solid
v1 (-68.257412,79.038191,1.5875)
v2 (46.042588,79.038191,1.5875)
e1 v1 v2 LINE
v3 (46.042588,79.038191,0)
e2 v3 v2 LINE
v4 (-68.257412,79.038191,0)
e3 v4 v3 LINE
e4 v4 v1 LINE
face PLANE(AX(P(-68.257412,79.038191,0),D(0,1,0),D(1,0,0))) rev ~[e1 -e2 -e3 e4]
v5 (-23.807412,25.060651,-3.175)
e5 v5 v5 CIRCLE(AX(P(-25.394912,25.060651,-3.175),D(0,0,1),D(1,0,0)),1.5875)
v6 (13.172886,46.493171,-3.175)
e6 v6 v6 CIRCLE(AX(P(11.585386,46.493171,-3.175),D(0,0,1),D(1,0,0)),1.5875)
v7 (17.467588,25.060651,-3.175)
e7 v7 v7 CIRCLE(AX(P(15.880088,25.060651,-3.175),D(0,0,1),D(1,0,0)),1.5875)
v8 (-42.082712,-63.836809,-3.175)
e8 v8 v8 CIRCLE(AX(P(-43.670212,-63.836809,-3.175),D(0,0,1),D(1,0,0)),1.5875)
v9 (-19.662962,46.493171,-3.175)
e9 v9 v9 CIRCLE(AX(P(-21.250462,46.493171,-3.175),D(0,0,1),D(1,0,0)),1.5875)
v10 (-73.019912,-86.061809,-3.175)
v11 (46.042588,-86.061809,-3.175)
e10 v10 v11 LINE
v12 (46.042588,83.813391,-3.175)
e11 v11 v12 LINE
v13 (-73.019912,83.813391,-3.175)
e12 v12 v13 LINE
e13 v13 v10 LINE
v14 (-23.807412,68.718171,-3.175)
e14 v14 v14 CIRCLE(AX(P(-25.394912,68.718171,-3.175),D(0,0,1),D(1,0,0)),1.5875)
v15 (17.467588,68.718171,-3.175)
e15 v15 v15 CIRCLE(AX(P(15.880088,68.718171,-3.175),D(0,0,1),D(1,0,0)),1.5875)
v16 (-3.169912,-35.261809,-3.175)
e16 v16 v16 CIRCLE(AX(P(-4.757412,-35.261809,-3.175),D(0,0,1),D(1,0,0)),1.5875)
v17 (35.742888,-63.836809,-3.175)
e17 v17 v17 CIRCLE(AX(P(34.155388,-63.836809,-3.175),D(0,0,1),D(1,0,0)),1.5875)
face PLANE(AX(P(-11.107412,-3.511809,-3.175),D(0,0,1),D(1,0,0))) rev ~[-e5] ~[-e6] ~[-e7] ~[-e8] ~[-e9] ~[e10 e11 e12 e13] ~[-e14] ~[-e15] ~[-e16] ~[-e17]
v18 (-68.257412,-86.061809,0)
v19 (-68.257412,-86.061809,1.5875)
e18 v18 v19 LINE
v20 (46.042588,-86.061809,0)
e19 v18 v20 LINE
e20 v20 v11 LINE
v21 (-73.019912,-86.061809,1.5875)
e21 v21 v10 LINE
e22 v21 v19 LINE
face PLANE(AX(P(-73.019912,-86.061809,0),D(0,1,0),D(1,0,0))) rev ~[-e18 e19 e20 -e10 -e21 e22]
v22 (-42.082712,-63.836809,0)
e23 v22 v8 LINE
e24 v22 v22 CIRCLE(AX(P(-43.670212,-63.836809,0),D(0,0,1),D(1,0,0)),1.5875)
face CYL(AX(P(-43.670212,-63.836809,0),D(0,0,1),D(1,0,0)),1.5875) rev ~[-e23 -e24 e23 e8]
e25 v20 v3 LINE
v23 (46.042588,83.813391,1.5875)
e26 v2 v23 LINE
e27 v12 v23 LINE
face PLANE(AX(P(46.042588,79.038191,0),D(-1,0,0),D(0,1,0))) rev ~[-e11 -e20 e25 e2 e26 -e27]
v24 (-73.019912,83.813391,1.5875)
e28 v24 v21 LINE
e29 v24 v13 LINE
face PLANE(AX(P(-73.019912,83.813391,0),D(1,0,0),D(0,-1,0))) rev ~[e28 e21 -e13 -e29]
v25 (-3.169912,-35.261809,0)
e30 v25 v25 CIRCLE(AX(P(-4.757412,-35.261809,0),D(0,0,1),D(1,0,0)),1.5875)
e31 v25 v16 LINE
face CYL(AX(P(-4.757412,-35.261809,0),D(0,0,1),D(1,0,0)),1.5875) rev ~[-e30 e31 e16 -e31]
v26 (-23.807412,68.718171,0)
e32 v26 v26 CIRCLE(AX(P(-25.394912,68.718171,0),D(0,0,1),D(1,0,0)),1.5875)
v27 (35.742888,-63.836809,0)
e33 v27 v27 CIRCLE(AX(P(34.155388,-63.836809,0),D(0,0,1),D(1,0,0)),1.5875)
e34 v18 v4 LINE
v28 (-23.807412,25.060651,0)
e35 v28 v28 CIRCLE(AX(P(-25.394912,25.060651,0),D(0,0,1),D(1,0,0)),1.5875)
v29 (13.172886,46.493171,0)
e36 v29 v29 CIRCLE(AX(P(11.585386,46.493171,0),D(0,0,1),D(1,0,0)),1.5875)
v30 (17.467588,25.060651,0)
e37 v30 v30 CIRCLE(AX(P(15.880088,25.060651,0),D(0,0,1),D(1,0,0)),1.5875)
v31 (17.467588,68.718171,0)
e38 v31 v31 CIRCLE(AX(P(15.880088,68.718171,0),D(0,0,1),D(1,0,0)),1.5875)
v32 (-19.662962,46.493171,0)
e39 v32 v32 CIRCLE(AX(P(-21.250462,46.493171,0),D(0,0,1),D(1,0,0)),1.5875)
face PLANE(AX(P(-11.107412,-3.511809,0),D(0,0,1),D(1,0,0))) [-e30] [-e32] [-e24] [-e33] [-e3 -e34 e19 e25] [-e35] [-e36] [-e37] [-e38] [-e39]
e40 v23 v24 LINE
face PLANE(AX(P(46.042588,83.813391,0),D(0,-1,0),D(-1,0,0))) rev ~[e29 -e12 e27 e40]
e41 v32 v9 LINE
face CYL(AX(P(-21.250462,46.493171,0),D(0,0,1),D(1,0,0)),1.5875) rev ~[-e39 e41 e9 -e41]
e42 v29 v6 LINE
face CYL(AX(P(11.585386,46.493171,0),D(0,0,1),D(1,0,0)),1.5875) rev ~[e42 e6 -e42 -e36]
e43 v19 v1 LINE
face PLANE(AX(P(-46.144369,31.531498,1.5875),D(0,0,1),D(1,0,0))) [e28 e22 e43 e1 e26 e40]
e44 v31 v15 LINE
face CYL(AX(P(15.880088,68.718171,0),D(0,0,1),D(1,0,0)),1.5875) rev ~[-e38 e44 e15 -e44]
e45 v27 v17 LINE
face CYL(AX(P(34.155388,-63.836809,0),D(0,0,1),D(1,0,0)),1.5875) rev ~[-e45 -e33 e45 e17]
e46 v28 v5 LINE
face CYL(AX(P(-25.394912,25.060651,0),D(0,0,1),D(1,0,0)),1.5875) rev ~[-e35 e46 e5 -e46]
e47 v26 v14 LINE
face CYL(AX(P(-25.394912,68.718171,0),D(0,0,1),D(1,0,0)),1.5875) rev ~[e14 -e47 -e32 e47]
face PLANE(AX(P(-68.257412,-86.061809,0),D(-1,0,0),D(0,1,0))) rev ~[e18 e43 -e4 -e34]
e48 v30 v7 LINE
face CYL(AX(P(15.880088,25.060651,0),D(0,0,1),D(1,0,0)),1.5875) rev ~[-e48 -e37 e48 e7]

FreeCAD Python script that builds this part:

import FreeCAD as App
import Part
import Sketcher

V = App.Vector
Q = App.Units.Quantity


def add_polygon(sketch, points):
    """Adds a closed chain of lines whose ends are joined by coincident constraints."""
    first, n = sketch.GeometryCount, len(points)
    for a, b in zip(points, points[1:] + points[:1]):
        sketch.addGeometry(Part.LineSegment(App.Vector(*a, 0), App.Vector(*b, 0)), False)
    for i in range(n):
        sketch.addConstraint(Sketcher.Constraint("Coincident", first + i, 2, first + (i + 1) % n, 1))

doc = App.newDocument("Part")
body = doc.addObject("PartDesign::Body", "Body")

# Sketch on XY plane
sketch1 = body.newObject("Sketcher::SketchObject", "Sketch")
sketch1.AttachmentSupport = (doc.getObject("XY_Plane"), [""])
sketch1.MapMode = "FlatFace"
add_polygon(sketch1, [(46, -86.1), (46, 83.8), (-73, 83.8), (-73, -86.1)])  # lines 0-3
sketch1.addGeometry(Part.Circle(V(-43.7, -63.8, 0), V(0, 0, 1), 1.6), False)  # 4
sketch1.addGeometry(Part.Circle(V(-4.8, -35.3, 0), V(0, 0, 1), 1.6), False)  # 5
sketch1.addGeometry(Part.Circle(V(34.2, -63.8, 0), V(0, 0, 1), 1.6), False)  # 6
sketch1.addGeometry(Part.Circle(V(-25.4, 25.1, 0), V(0, 0, 1), 1.6), False)  # 7
sketch1.addGeometry(Part.Circle(V(-25.4, 68.7, 0), V(0, 0, 1), 1.6), False)  # 8
sketch1.addGeometry(Part.Circle(V(-21.3, 46.5, 0), V(0, 0, 1), 1.6), False)  # 9
sketch1.addGeometry(Part.Circle(V(15.9, 25.1, 0), V(0, 0, 1), 1.6), False)  # 10
sketch1.addGeometry(Part.Circle(V(11.6, 46.5, 0), V(0, 0, 1), 1.6), False)  # 11
sketch1.addGeometry(Part.Circle(V(15.9, 68.7, 0), V(0, 0, 1), 1.6), False)  # 12
sketch1.addConstraint([
    Sketcher.Constraint("Vertical", 0),
    Sketcher.Constraint("Horizontal", 1),
    Sketcher.Constraint("Vertical", 2),
    Sketcher.Constraint("Horizontal", 3),
    Sketcher.Constraint("Equal", 4, 5),
    Sketcher.Constraint("Equal", 5, 6),
    Sketcher.Constraint("Equal", 6, 7),
    Sketcher.Constraint("Equal", 7, 8),
    Sketcher.Constraint("Equal", 8, 9),
    Sketcher.Constraint("Equal", 9, 10),
    Sketcher.Constraint("Equal", 10, 11),
    Sketcher.Constraint("Equal", 11, 12),
    Sketcher.Constraint("Horizontal", 4, 3, 6, 3),
    Sketcher.Constraint("Horizontal", 7, 3, 10, 3),
    Sketcher.Constraint("Horizontal", 9, 3, 11, 3),
    Sketcher.Constraint("Horizontal", 8, 3, 12, 3),
    Sketcher.Constraint("Vertical", 7, 3, 8, 3),
    Sketcher.Constraint("Vertical", 10, 3, 12, 3),
    Sketcher.Constraint("Diameter", 4, Q("0.125 in")),
    Sketcher.Constraint("DistanceY", 2, 2, 5, 3, Q("2 in")),
    Sketcher.Constraint("DistanceX", 5, 3, 3, 2, Q("2 in")),
    Sketcher.Constraint("DistanceX", 1, 2, 12, 3, Q("3.5 in")),
    Sketcher.Constraint("DistanceX", 1, 2, 1, 1, Q("4.6875 in")),
    Sketcher.Constraint("DistanceY", 0, 1, 0, 2, Q("6.688 in")),
    Sketcher.Constraint("DistanceX", 4, 3, 5, 3, Q("1.532 in")),
    Sketcher.Constraint("DistanceY", 4, 3, 5, 3, Q("1.125 in")),
    Sketcher.Constraint("DistanceX", 5, 3, 6, 3, Q("1.532 in")),
    Sketcher.Constraint("DistanceX", 7, 3, 5, 3, Q("0.8125 in")),
    Sketcher.Constraint("DistanceY", 9, 3, 8, 3, Q("0.875 in")),
    Sketcher.Constraint("DistanceY", 5, 3, 7, 3, Q("2.3749 in")),
    Sketcher.Constraint("DistanceY", 7, 3, 8, 3, Q("1.7188 in")),
    Sketcher.Constraint("DistanceX", 7, 3, 11, 3, 36.980298),
    Sketcher.Constraint("DistanceY", 4, 3, -1, 1, 63.836809),
    Sketcher.Constraint("DistanceX", -1, 1, 6, 3, 34.155388),
    Sketcher.Constraint("DistanceX", 9, 3, -1, 1, 21.250462),
])
pad1 = body.newObject("PartDesign::Pad", "Pad")
pad1.Profile = sketch1
pad1.Length = Q("0.125 in")
pad1.Reversed = True

# Sketch on XY plane
sketch2 = body.newObject("Sketcher::SketchObject", "Sketch001")
sketch2.AttachmentSupport = (doc.getObject("XY_Plane"), [""])
sketch2.MapMode = "FlatFace"
add_polygon(sketch2, [(-68.3, -86.1), (-68.3, 79), (46, 79), (46, 83.8), (-73, 83.8), (-73, -86.1)])  # lines 0-5
sketch2.addConstraint([
    Sketcher.Constraint("Vertical", 0),
    Sketcher.Constraint("Horizontal", 1),
    Sketcher.Constraint("Vertical", 2),
    Sketcher.Constraint("Horizontal", 3),
    Sketcher.Constraint("Vertical", 4),
    Sketcher.Constraint("Horizontal", 5),
    Sketcher.Constraint("DistanceX", 1, 1, 1, 2, Q("4.5 in")),
    Sketcher.Constraint("DistanceY", 0, 1, 0, 2, Q("6.5 in")),
    Sketcher.Constraint("DistanceX", 3, 2, 3, 1, Q("4.6875 in")),
    Sketcher.Constraint("DistanceY", 2, 1, 2, 2, Q("0.188 in")),
    Sketcher.Constraint("DistanceY", -1, 1, 0, 2, 79.038191),
    Sketcher.Constraint("DistanceX", -1, 1, 1, 2, 46.042588),
])
pad2 = body.newObject("PartDesign::Pad", "Pad001")
pad2.Profile = sketch2
pad2.Length = Q("0.0625 in")

doc.recompute()
